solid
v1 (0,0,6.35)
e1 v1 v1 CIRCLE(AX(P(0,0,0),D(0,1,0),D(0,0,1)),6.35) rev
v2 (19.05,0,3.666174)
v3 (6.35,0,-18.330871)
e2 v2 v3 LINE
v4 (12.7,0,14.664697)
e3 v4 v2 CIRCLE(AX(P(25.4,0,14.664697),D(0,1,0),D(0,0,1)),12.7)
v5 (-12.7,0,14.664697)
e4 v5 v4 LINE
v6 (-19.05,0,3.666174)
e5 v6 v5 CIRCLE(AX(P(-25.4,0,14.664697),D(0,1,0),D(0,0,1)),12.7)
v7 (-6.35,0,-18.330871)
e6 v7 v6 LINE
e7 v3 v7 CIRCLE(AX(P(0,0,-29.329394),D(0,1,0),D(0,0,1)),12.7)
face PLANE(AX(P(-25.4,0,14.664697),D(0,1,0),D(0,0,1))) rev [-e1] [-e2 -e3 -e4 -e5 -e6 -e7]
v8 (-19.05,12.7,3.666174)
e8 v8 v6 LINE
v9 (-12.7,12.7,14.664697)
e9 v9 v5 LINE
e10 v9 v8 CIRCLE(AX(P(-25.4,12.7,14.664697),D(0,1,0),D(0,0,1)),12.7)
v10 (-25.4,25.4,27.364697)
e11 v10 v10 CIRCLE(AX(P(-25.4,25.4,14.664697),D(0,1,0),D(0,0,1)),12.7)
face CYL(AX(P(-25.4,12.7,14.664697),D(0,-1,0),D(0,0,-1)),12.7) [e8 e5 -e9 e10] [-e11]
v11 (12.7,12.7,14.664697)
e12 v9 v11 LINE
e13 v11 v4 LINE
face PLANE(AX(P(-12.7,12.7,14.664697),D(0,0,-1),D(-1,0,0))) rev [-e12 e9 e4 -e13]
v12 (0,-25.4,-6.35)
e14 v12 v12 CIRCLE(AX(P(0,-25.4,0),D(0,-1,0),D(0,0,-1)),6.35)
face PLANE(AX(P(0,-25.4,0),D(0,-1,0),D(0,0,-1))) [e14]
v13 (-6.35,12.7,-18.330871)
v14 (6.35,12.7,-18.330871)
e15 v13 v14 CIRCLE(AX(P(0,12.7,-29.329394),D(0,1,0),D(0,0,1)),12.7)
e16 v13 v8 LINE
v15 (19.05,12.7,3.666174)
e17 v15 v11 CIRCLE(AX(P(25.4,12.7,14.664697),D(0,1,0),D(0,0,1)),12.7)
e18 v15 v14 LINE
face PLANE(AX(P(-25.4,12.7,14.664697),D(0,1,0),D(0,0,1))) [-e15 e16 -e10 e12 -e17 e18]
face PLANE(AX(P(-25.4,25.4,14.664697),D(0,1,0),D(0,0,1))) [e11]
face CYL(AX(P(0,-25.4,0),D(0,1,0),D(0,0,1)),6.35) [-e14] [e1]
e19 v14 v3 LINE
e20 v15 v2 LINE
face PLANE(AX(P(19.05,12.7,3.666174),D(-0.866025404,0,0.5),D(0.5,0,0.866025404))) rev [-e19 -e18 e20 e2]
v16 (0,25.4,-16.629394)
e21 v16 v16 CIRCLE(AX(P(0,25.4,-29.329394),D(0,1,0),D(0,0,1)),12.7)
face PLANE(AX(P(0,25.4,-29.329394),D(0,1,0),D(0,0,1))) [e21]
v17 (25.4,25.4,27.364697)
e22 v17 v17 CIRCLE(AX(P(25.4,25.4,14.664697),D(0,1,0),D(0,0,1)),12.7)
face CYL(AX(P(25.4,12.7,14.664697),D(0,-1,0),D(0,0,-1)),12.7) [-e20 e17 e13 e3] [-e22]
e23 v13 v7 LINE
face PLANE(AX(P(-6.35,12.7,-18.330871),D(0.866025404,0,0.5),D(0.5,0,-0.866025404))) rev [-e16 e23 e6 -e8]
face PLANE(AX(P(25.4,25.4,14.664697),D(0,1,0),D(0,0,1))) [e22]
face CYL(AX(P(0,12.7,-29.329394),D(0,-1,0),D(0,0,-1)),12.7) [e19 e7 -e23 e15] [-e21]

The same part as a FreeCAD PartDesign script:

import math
import FreeCAD as App
import Part
import Sketcher
from FreeCAD import Vector
Q = App.Units.Quantity

doc = App.newDocument("Part")
body = doc.addObject("PartDesign::Body", "Body")

sketch1 = body.newObject("Sketcher::SketchObject", "Sketch")
sketch1.AttachmentSupport = (doc.getObject("XZ_Plane"), [""])
sketch1.MapMode = "FlatFace"
sketch1.addGeometry([
    Part.LineSegment(Vector(-6.35, -18.330871, 0), Vector(-19.05, 3.666174, 0)),
    Part.ArcOfCircle(Part.Circle(Vector(-25.4, 14.664697, 0), Vector(0, 0, 1), 12.7), math.radians(0), math.radians(300)),
    Part.LineSegment(Vector(-12.7, 14.664697, 0), Vector(12.7, 14.664697, 0)),
    Part.ArcOfCircle(Part.Circle(Vector(25.4, 14.664697, 0), Vector(0, 0, 1), 12.7), math.radians(-120), math.radians(180)),
    Part.LineSegment(Vector(19.05, 3.666174, 0), Vector(6.35, -18.330871, 0)),
    Part.ArcOfCircle(Part.Circle(Vector(0, -29.329394, 0), Vector(0, 0, 1), 12.7), math.radians(120), math.radians(420)),
], False)
sketch1.addConstraint([
    Sketcher.Constraint("Coincident", 0, 2, 1, 2),
    Sketcher.Constraint("Coincident", 1, 1, 2, 1),
    Sketcher.Constraint("Coincident", 2, 2, 3, 2),
    Sketcher.Constraint("Coincident", 3, 1, 4, 1),
    Sketcher.Constraint("Coincident", 4, 2, 5, 2),
    Sketcher.Constraint("Coincident", 5, 1, 0, 1),
    Sketcher.Constraint("Horizontal", 2),
    Sketcher.Constraint("Equal", 1, 3),
    Sketcher.Constraint("Equal", 3, 5),
    Sketcher.Constraint("Symmetric", 1, 3, 3, 3, -2),
    Sketcher.Constraint("Symmetric", 4, 2, 5, 1, -2),
    Sketcher.Constraint("Horizontal", 3, 3, 1, 1),
    Sketcher.Constraint("Horizontal", 0, 2, 3, 1),
    Sketcher.Constraint("Radius", 1, Q("0.5 in")),
    Sketcher.Constraint("DistanceX", 2, 1, 2, 2, Q("1 in")),
    Sketcher.Constraint("Distance", 0, Q("1 in")),
    Sketcher.Constraint("Angle", 0, Q("120 deg")),
    Sketcher.Constraint("DistanceX", 0, 2, 4, 2, Q("1 in")),
    Sketcher.Constraint("DistanceY", 4, 2, -1, 1, 18.330871),
])
pad1 = body.newObject("PartDesign::Pad", "Pad")
pad1.Profile = sketch1
pad1.Length = Q("0.5 in")
pad1.Reversed = True

sketch2 = body.newObject("Sketcher::SketchObject", "Sketch001")
sketch2.AttachmentSupport = (doc.getObject("XZ_Plane"), [""])
sketch2.MapMode = "FlatFace"
sketch2.AttachmentOffset = App.Placement(Vector(0, 0, -0.5 * 25.4), App.Rotation())
sketch2.addGeometry([
    Part.Circle(Vector(-25.4, 14.664697, 0), Vector(0, 0, 1), 12.7),
    Part.Circle(Vector(25.4, 14.664697, 0), Vector(0, 0, 1), 12.7),
    Part.Circle(Vector(0, -29.329394, 0), Vector(0, 0, 1), 12.7),
], False)
sketch2.addConstraint([
    Sketcher.Constraint("Equal", 0, 1),
    Sketcher.Constraint("Equal", 1, 2),
    Sketcher.Constraint("Symmetric", 0, 3, 1, 3, -2),
    Sketcher.Constraint("PointOnObject", 2, 3, -2),
    Sketcher.Constraint("Diameter", 0, Q("1 in")),
    Sketcher.Constraint("DistanceX", 0, 3, -1, 1, Q("1 in")),
    Sketcher.Constraint("DistanceY", 2, 3, 0, 3, 43.994091),
    Sketcher.Constraint("DistanceY", -1, 1, 0, 3, 14.664697),
])
pad2 = body.newObject("PartDesign::Pad", "Pad001")
pad2.Profile = sketch2
pad2.Length = Q("0.5 in")
pad2.Reversed = True

sketch3 = body.newObject("Sketcher::SketchObject", "Sketch002")
sketch3.AttachmentSupport = (doc.getObject("XZ_Plane"), [""])
sketch3.MapMode = "FlatFace"
sketch3.addGeometry(Part.Circle(Vector(0, 0, 0), Vector(0, 0, 1), 6.35), False)
sketch3.addConstraint([
    Sketcher.Constraint("Coincident", 0, 3, -1, 1),
    Sketcher.Constraint("Diameter", 0, Q("0.5 in")),
])
pad3 = body.newObject("PartDesign::Pad", "Pad002")
pad3.Profile = sketch3
pad3.Length = Q("1 in")

doc.recompute()
